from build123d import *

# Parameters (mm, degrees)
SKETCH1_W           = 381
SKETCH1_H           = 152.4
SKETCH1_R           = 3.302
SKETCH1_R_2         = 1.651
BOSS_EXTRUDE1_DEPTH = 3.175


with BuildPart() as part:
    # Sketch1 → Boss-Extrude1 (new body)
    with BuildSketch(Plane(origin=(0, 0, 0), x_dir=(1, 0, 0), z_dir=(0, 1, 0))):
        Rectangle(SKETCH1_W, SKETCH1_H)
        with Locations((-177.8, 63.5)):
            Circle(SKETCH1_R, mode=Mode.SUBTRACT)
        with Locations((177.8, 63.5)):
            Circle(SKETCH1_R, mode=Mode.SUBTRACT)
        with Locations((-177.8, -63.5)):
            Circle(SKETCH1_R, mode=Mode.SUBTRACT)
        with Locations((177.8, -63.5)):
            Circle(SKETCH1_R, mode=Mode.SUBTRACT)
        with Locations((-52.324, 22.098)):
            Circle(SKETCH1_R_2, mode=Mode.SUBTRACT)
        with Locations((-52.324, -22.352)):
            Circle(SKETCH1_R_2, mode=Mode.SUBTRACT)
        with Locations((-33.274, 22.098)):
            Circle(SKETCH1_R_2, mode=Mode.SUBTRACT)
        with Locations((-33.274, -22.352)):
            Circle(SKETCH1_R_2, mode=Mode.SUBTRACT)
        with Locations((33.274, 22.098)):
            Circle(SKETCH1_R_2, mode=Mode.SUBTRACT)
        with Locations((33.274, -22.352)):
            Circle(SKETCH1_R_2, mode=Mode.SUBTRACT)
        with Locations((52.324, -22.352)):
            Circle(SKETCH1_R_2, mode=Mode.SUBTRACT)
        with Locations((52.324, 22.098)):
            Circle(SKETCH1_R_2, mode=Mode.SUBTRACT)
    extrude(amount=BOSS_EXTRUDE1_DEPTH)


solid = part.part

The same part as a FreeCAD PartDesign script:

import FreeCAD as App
import Part
import Sketcher
Q = App.Units.Quantity

doc = App.newDocument("Part")
body = doc.addObject("PartDesign::Body", "Body")

# Sketch on XZ plane
sketch1 = body.newObject("Sketcher::SketchObject", "Sketch")
sketch1.AttachmentSupport = (doc.getObject("XZ_Plane"), [""])
sketch1.MapMode = "FlatFace"
sketch1.addGeometry([
    Part.LineSegment(App.Vector(-190.5, -76.2, 0), App.Vector(-190.5, 76.2, 0)),  # 0
    Part.LineSegment(App.Vector(-190.5, 76.2, 0), App.Vector(190.5, 76.2, 0)),  # 1
    Part.LineSegment(App.Vector(190.5, 76.2, 0), App.Vector(190.5, -76.2, 0)),  # 2
    Part.LineSegment(App.Vector(190.5, -76.2, 0), App.Vector(-190.5, -76.2, 0)),  # 3
    Part.Circle(App.Vector(-177.8, 63.5, 0), App.Vector(0, 0, 1), 3.3),  # 4
    Part.Circle(App.Vector(-52.3, 22.4, 0), App.Vector(0, 0, 1), 1.7),  # 5
    Part.Circle(App.Vector(-33.3, 22.4, 0), App.Vector(0, 0, 1), 1.7),  # 6
    Part.Circle(App.Vector(177.8, 63.5, 0), App.Vector(0, 0, 1), 3.3),  # 7
    Part.Circle(App.Vector(33.3, 22.4, 0), App.Vector(0, 0, 1), 1.7),  # 8
    Part.Circle(App.Vector(52.3, 22.4, 0), App.Vector(0, 0, 1), 1.7),  # 9
    Part.Circle(App.Vector(-52.3, -22.1, 0), App.Vector(0, 0, 1), 1.7),  # 10
    Part.Circle(App.Vector(-33.3, -22.1, 0), App.Vector(0, 0, 1), 1.7),  # 11
    Part.Circle(App.Vector(-177.8, -63.5, 0), App.Vector(0, 0, 1), 3.3),  # 12
    Part.Circle(App.Vector(33.3, -22.1, 0), App.Vector(0, 0, 1), 1.7),  # 13
    Part.Circle(App.Vector(52.3, -22.1, 0), App.Vector(0, 0, 1), 1.7),  # 14
    Part.Circle(App.Vector(177.8, -63.5, 0), App.Vector(0, 0, 1), 3.3),  # 15
], False)
sketch1.addConstraint([
    Sketcher.Constraint("Coincident", 0, 2, 1, 1),
    Sketcher.Constraint("Coincident", 1, 2, 2, 1),
    Sketcher.Constraint("Coincident", 2, 2, 3, 1),
    Sketcher.Constraint("Coincident", 3, 2, 0, 1),
    Sketcher.Constraint("Vertical", 0),
    Sketcher.Constraint("Horizontal", 1),
    Sketcher.Constraint("Vertical", 2),
    Sketcher.Constraint("Horizontal", 3),
    Sketcher.Constraint("Equal", 5, 6),
    Sketcher.Constraint("Equal", 4, 7),
    Sketcher.Constraint("Equal", 6, 8),
    Sketcher.Constraint("Equal", 8, 9),
    Sketcher.Constraint("Equal", 9, 10),
    Sketcher.Constraint("Equal", 10, 11),
    Sketcher.Constraint("Equal", 7, 12),
    Sketcher.Constraint("Equal", 11, 13),
    Sketcher.Constraint("Equal", 13, 14),
    Sketcher.Constraint("Equal", 12, 15),
    Sketcher.Constraint("Symmetric", 7, 3, 12, 3, -1, 1),
    Sketcher.Constraint("Symmetric", 4, 3, 15, 3, -1, 1),
    Sketcher.Constraint("Symmetric", 0, 2, 2, 2, -1, 1),
    Sketcher.Constraint("Symmetric", 4, 3, 7, 3, -2),
    Sketcher.Constraint("Symmetric", 6, 3, 8, 3, -2),
    Sketcher.Constraint("Symmetric", 5, 3, 9, 3, -2),
    Sketcher.Constraint("Symmetric", 11, 3, 13, 3, -2),
    Sketcher.Constraint("Symmetric", 10, 3, 14, 3, -2),
    Sketcher.Constraint("Horizontal", 5, 3, 6, 3),
    Sketcher.Constraint("Horizontal", 10, 3, 11, 3),
    Sketcher.Constraint("Vertical", 5, 3, 10, 3),
    Sketcher.Constraint("Vertical", 6, 3, 11, 3),
    Sketcher.Constraint("Diameter", 4, Q("0.26 in")),
    Sketcher.Constraint("Diameter", 5, Q("0.13 in")),
    Sketcher.Constraint("DistanceX", 1, 1, 1, 2, Q("15 in")),
    Sketcher.Constraint("DistanceY", 0, 1, 0, 2, Q("6 in")),
    Sketcher.Constraint("DistanceX", 4, 3, -1, 1, Q("7 in")),
    Sketcher.Constraint("DistanceY", 12, 3, 4, 3, Q("5 in")),
    Sketcher.Constraint("DistanceX", 5, 3, -1, 1, Q("2.06 in")),
    Sketcher.Constraint("DistanceY", -1, 1, 5, 3, Q("0.88 in")),
    Sketcher.Constraint("DistanceX", 6, 3, -1, 1, Q("1.31 in")),
    Sketcher.Constraint("DistanceY", 10, 3, -1, 1, Q("0.87 in")),
])
pad1 = body.newObject("PartDesign::Pad", "Pad")
pad1.Profile = sketch1
pad1.Length = Q("0.125 in")
pad1.Reversed = True

doc.recompute()
